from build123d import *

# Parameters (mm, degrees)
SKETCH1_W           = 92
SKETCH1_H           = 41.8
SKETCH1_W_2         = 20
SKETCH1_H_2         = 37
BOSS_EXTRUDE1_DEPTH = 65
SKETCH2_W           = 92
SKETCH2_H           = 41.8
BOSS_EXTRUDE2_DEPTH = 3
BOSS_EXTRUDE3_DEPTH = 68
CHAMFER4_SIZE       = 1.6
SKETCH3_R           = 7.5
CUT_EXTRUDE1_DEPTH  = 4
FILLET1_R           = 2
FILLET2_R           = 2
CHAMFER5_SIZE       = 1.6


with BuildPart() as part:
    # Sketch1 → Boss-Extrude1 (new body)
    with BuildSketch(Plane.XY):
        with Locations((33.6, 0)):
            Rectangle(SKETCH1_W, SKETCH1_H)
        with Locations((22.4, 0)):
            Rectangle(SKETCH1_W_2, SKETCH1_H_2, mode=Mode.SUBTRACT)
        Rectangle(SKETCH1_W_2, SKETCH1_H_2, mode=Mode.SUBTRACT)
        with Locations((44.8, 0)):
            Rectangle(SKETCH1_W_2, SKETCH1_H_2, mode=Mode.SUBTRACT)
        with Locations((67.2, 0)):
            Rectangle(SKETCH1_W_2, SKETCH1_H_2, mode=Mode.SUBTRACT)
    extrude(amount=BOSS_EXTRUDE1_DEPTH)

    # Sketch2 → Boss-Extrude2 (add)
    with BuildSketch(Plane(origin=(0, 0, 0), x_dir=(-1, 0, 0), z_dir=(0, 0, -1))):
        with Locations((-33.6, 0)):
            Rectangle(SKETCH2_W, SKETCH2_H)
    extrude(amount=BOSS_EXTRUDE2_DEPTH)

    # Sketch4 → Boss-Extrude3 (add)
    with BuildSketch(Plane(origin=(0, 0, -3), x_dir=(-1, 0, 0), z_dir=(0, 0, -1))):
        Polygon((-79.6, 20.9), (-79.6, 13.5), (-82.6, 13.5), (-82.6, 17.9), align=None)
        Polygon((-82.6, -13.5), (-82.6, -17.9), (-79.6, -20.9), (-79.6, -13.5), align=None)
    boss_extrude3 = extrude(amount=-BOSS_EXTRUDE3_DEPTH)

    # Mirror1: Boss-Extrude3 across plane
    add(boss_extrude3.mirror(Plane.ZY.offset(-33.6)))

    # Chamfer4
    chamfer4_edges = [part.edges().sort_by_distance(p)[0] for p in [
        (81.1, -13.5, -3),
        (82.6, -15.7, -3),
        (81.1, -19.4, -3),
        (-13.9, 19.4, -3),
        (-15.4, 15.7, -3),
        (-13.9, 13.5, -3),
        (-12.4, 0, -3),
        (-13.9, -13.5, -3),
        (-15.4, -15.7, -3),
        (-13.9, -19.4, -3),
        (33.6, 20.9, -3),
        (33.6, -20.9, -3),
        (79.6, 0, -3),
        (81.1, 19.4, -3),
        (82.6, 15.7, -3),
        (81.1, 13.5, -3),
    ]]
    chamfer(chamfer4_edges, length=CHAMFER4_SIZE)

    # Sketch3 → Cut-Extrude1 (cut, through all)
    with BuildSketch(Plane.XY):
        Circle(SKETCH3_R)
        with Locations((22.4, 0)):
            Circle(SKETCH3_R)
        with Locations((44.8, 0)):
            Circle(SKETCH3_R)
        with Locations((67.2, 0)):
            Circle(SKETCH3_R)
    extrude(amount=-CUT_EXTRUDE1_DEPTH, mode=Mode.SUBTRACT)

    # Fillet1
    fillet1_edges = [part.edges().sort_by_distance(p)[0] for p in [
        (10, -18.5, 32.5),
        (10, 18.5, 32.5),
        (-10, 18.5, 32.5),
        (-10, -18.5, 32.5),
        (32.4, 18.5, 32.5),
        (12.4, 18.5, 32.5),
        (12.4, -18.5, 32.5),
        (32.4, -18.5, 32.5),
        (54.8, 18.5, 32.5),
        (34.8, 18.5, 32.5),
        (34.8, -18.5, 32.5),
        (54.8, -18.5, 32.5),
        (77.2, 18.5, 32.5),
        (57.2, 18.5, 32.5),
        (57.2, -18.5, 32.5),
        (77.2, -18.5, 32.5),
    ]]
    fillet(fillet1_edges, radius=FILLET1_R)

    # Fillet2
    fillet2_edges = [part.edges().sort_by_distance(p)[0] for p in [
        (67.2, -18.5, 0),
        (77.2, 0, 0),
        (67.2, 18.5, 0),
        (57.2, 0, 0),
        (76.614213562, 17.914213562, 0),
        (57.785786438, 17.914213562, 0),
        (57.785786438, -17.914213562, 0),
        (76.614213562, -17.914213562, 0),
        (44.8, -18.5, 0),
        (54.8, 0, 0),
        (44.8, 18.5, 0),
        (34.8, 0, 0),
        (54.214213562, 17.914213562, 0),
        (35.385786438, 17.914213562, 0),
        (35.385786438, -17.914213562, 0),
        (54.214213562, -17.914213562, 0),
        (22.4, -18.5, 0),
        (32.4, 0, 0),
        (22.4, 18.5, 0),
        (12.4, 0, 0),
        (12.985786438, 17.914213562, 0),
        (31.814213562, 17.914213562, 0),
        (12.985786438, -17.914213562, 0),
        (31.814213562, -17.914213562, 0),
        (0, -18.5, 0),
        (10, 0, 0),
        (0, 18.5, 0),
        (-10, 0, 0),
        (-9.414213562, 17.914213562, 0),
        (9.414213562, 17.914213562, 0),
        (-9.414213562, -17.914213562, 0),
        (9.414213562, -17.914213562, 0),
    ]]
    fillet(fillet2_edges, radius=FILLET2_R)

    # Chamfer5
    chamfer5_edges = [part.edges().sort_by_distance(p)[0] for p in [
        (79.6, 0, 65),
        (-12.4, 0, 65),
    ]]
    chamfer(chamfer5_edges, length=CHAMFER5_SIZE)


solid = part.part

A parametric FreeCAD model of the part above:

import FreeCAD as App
import Part
import Sketcher
from FreeCAD import Vector


def edges_at(feature, points):
    """Names of the edges that pass closest to the given points."""
    edges = feature.Shape.Edges
    near = lambda p: min(range(len(edges)), key=lambda i: edges[i].distToShape(Part.Vertex(*p))[0])
    return sorted({f"Edge{near(p) + 1}" for p in points})


def add_polygon(sketch, points):
    """Adds a closed chain of lines whose ends are joined by coincident constraints."""
    first, n = sketch.GeometryCount, len(points)
    for a, b in zip(points, points[1:] + points[:1]):
        sketch.addGeometry(Part.LineSegment(App.Vector(*a, 0), App.Vector(*b, 0)), False)
    for i in range(n):
        sketch.addConstraint(Sketcher.Constraint("Coincident", first + i, 2, first + (i + 1) % n, 1))

doc = App.newDocument("Part")
body = doc.addObject("PartDesign::Body", "Body")

sketch1 = body.newObject("Sketcher::SketchObject", "Sketch")
sketch1.AttachmentSupport = (doc.getObject("XY_Plane"), [""])
sketch1.MapMode = "FlatFace"
add_polygon(sketch1, [(-12, 21), (-12, -21), (80, -21), (80, 21)])
add_polygon(sketch1, [(10, -18), (-10, -18), (-10, 18), (10, 18)])
add_polygon(sketch1, [(32, -18), (12, -18), (12, 18), (32, 18)])
add_polygon(sketch1, [(55, -18), (35, -18), (35, 18), (55, 18)])
add_polygon(sketch1, [(77, -18), (57, -18), (57, 18), (77, 18)])
sketch1.addConstraint([
    Sketcher.Constraint("Vertical", 0),
    Sketcher.Constraint("Horizontal", 1),
    Sketcher.Constraint("Vertical", 2),
    Sketcher.Constraint("Horizontal", 3),
    Sketcher.Constraint("Horizontal", 4),
    Sketcher.Constraint("Vertical", 5),
    Sketcher.Constraint("Horizontal", 6),
    Sketcher.Constraint("Vertical", 7),
    Sketcher.Constraint("Horizontal", 8),
    Sketcher.Constraint("Vertical", 9),
    Sketcher.Constraint("Horizontal", 10),
    Sketcher.Constraint("Vertical", 11),
    Sketcher.Constraint("Horizontal", 12),
    Sketcher.Constraint("Vertical", 13),
    Sketcher.Constraint("Horizontal", 14),
    Sketcher.Constraint("Vertical", 15),
    Sketcher.Constraint("Horizontal", 16),
    Sketcher.Constraint("Vertical", 17),
    Sketcher.Constraint("Horizontal", 18),
    Sketcher.Constraint("Vertical", 19),
    Sketcher.Constraint("Symmetric", 4, 2, 6, 2, -1, 1),
    Sketcher.Constraint("Horizontal", 7, 2, 8, 2),
    Sketcher.Constraint("Horizontal", 6, 2, 9, 2),
    Sketcher.Constraint("Horizontal", 11, 2, 12, 2),
    Sketcher.Constraint("Horizontal", 10, 2, 13, 2),
    Sketcher.Constraint("Horizontal", 15, 2, 16, 2),
    Sketcher.Constraint("Horizontal", 14, 2, 17, 2),
    Sketcher.Constraint("Equal", 6, 8),
    Sketcher.Constraint("Equal", 10, 12),
    Sketcher.Constraint("Equal", 14, 16),
    Sketcher.Constraint("DistanceX", 1, 1, 1, 2, 92.0),
    Sketcher.Constraint("DistanceX", 4, 2, 4, 1, 20.0),
    Sketcher.Constraint("DistanceY", 5, 1, 5, 2, 37.0),
    Sketcher.Constraint("DistanceY", 0, 2, 0, 1, 41.8),
    Sketcher.Constraint("DistanceX", 0, 2, -1, 1, 12.4),
    Sketcher.Constraint("DistanceY", 0, 2, -1, 1, 20.9),
    Sketcher.Constraint("DistanceX", -1, 1, 8, 2, 12.4),
    Sketcher.Constraint("DistanceX", -1, 1, 12, 2, 34.8),
    Sketcher.Constraint("DistanceX", -1, 1, 16, 2, 57.2),
])
pad1 = body.newObject("PartDesign::Pad", "Pad")
pad1.Profile = sketch1
pad1.Length = 65

sketch2 = body.newObject("Sketcher::SketchObject", "Sketch001")
sketch2.AttachmentSupport = (doc.getObject("XY_Plane"), [""])
sketch2.MapMode = "FlatFace"
add_polygon(sketch2, [(80, 21), (80, -21), (-12, -21), (-12, 21)])
sketch2.addConstraint([
    Sketcher.Constraint("Vertical", 0),
    Sketcher.Constraint("Horizontal", 1),
    Sketcher.Constraint("Vertical", 2),
    Sketcher.Constraint("Horizontal", 3),
    Sketcher.Constraint("DistanceX", 1, 2, 1, 1, 92.0),
    Sketcher.Constraint("DistanceY", 0, 2, 0, 1, 41.8),
    Sketcher.Constraint("DistanceX", -1, 1, 0, 2, 79.6),
    Sketcher.Constraint("DistanceY", 0, 2, -1, 1, 20.9),
])
pad2 = body.newObject("PartDesign::Pad", "Pad001")
pad2.Profile = sketch2
pad2.Length = 3
pad2.Reversed = True

sketch3 = body.newObject("Sketcher::SketchObject", "Sketch002")
sketch3.AttachmentSupport = (doc.getObject("XY_Plane"), [""])
sketch3.MapMode = "FlatFace"
sketch3.AttachmentOffset = App.Placement(Vector(0, 0, -3), App.Rotation())
add_polygon(sketch3, [(79.6, 13.5), (79.6, 20.9), (82.6, 17.9), (82.6, 13.5)])
add_polygon(sketch3, [(82.6, -13.5), (82.6, -17.9), (79.6, -20.9), (79.6, -13.5)])
sketch3.addConstraint([
    Sketcher.Constraint("Vertical", 0),
    Sketcher.Constraint("Vertical", 2),
    Sketcher.Constraint("Horizontal", 3),
    Sketcher.Constraint("Vertical", 4),
    Sketcher.Constraint("Vertical", 6),
    Sketcher.Constraint("Horizontal", 7),
    Sketcher.Constraint("Symmetric", 1, 2, 4, 2, -1),
    Sketcher.Constraint("Symmetric", 0, 2, 5, 2, -1),
    Sketcher.Constraint("Perpendicular", 1, 5),
    Sketcher.Constraint("Equal", 2, 4),
    Sketcher.Constraint("DistanceX", 3, 2, 3, 1, 3.0),
    Sketcher.Constraint("DistanceY", 0, 1, 0, 2, 7.4),
    Sketcher.Constraint("DistanceY", 6, 2, 3, 2, 27.0),
    Sketcher.Constraint("DistanceX", -1, 1, 0, 2, 79.6),
])
pad3 = body.newObject("PartDesign::Pad", "Pad002")
pad3.Profile = sketch3
pad3.Length = 68
doc.recompute()

datumplane = body.newObject("PartDesign::Plane", "DatumPlane")
datumplane.AttachmentSupport = (doc.getObject("YZ_Plane"), [""])
datumplane.MapMode = "FlatFace"
datumplane.AttachmentOffset = App.Placement(Vector(0, 0, 33.6), App.Rotation())
mirrored = body.newObject("PartDesign::Mirrored", "Mirrored")
mirrored.Originals = [pad3]
mirrored.MirrorPlane = (datumplane, [""])
body.Tip = mirrored
doc.recompute()

chamfer = body.newObject("PartDesign::Chamfer", "Chamfer")
chamfer.Base = (mirrored, edges_at(mirrored, [
    (81.1, -13.5, -3),
    (82.6, -15.7, -3),
    (81.1, -19.4, -3),
    (-13.9, 19.4, -3),
    (-15.4, 15.7, -3),
    (-13.9, 13.5, -3),
    (-12.4, 0, -3),
    (-13.9, -13.5, -3),
    (-15.4, -15.7, -3),
    (-13.9, -19.4, -3),
    (33.6, 20.9, -3),
    (33.6, -20.9, -3),
    (79.6, 0, -3),
    (81.1, 19.4, -3),
    (82.6, 15.7, -3),
    (81.1, 13.5, -3),
]))
chamfer.Size = 1.6

sketch4 = body.newObject("Sketcher::SketchObject", "Sketch003")
sketch4.AttachmentSupport = (doc.getObject("XY_Plane"), [""])
sketch4.MapMode = "FlatFace"
sketch4.addGeometry([
    Part.Circle(Vector(0, 0, 0), Vector(0, 0, 1), 8),
    Part.Circle(Vector(22, 0, 0), Vector(0, 0, 1), 8),
    Part.Circle(Vector(45, 0, 0), Vector(0, 0, 1), 8),
    Part.Circle(Vector(67, 0, 0), Vector(0, 0, 1), 8),
], False)
sketch4.addConstraint([
    Sketcher.Constraint("Coincident", 0, 3, -1, 1),
    Sketcher.Constraint("Equal", 0, 1),
    Sketcher.Constraint("Equal", 1, 2),
    Sketcher.Constraint("Equal", 2, 3),
    Sketcher.Constraint("PointOnObject", 1, 3, -1),
    Sketcher.Constraint("PointOnObject", 2, 3, -1),
    Sketcher.Constraint("PointOnObject", 3, 3, -1),
    Sketcher.Constraint("Diameter", 0, 15.0),
    Sketcher.Constraint("DistanceX", -1, 1, 1, 3, 22.4),
    Sketcher.Constraint("DistanceX", -1, 1, 2, 3, 44.8),
    Sketcher.Constraint("DistanceX", -1, 1, 3, 3, 67.2),
])
pocket1 = body.newObject("PartDesign::Pocket", "Pocket")
pocket1.Profile = sketch4
pocket1.Type = "ThroughAll"
doc.recompute()

fillet = body.newObject("PartDesign::Fillet", "Fillet")
fillet.Base = (pocket1, edges_at(pocket1, [
    (10, -18.5, 32.5),
    (10, 18.5, 32.5),
    (-10, 18.5, 32.5),
    (-10, -18.5, 32.5),
    (32.4, 18.5, 32.5),
    (12.4, 18.5, 32.5),
    (12.4, -18.5, 32.5),
    (32.4, -18.5, 32.5),
    (54.8, 18.5, 32.5),
    (34.8, 18.5, 32.5),
    (34.8, -18.5, 32.5),
    (54.8, -18.5, 32.5),
    (77.2, 18.5, 32.5),
    (57.2, 18.5, 32.5),
    (57.2, -18.5, 32.5),
    (77.2, -18.5, 32.5),
]))
fillet.Radius = 2
doc.recompute()

fillet2 = body.newObject("PartDesign::Fillet", "Fillet001")
fillet2.Base = (fillet, edges_at(fillet, [
    (67.2, -18.5, 0),
    (77.2, 0, 0),
    (67.2, 18.5, 0),
    (57.2, 0, 0),
    (76.614, 17.914, 0),
    (57.786, 17.914, 0),
    (57.786, -17.914, 0),
    (76.614, -17.914, 0),
    (44.8, -18.5, 0),
    (54.8, 0, 0),
    (44.8, 18.5, 0),
    (34.8, 0, 0),
    (54.214, 17.914, 0),
    (35.386, 17.914, 0),
    (35.386, -17.914, 0),
    (54.214, -17.914, 0),
    (22.4, -18.5, 0),
    (32.4, 0, 0),
    (22.4, 18.5, 0),
    (12.4, 0, 0),
    (12.986, 17.914, 0),
    (31.814, 17.914, 0),
    (12.986, -17.914, 0),
    (31.814, -17.914, 0),
    (0, -18.5, 0),
    (10, 0, 0),
    (0, 18.5, 0),
    (-10, 0, 0),
    (-9.414, 17.914, 0),
    (9.414, 17.914, 0),
    (-9.414, -17.914, 0),
    (9.414, -17.914, 0),
]))
fillet2.Radius = 2
doc.recompute()

chamfer2 = body.newObject("PartDesign::Chamfer", "Chamfer001")
chamfer2.Base = (fillet2, edges_at(fillet2, [(79.6, 0, 65), (-12.4, 0, 65)]))
chamfer2.Size = 1.6

doc.recompute()
